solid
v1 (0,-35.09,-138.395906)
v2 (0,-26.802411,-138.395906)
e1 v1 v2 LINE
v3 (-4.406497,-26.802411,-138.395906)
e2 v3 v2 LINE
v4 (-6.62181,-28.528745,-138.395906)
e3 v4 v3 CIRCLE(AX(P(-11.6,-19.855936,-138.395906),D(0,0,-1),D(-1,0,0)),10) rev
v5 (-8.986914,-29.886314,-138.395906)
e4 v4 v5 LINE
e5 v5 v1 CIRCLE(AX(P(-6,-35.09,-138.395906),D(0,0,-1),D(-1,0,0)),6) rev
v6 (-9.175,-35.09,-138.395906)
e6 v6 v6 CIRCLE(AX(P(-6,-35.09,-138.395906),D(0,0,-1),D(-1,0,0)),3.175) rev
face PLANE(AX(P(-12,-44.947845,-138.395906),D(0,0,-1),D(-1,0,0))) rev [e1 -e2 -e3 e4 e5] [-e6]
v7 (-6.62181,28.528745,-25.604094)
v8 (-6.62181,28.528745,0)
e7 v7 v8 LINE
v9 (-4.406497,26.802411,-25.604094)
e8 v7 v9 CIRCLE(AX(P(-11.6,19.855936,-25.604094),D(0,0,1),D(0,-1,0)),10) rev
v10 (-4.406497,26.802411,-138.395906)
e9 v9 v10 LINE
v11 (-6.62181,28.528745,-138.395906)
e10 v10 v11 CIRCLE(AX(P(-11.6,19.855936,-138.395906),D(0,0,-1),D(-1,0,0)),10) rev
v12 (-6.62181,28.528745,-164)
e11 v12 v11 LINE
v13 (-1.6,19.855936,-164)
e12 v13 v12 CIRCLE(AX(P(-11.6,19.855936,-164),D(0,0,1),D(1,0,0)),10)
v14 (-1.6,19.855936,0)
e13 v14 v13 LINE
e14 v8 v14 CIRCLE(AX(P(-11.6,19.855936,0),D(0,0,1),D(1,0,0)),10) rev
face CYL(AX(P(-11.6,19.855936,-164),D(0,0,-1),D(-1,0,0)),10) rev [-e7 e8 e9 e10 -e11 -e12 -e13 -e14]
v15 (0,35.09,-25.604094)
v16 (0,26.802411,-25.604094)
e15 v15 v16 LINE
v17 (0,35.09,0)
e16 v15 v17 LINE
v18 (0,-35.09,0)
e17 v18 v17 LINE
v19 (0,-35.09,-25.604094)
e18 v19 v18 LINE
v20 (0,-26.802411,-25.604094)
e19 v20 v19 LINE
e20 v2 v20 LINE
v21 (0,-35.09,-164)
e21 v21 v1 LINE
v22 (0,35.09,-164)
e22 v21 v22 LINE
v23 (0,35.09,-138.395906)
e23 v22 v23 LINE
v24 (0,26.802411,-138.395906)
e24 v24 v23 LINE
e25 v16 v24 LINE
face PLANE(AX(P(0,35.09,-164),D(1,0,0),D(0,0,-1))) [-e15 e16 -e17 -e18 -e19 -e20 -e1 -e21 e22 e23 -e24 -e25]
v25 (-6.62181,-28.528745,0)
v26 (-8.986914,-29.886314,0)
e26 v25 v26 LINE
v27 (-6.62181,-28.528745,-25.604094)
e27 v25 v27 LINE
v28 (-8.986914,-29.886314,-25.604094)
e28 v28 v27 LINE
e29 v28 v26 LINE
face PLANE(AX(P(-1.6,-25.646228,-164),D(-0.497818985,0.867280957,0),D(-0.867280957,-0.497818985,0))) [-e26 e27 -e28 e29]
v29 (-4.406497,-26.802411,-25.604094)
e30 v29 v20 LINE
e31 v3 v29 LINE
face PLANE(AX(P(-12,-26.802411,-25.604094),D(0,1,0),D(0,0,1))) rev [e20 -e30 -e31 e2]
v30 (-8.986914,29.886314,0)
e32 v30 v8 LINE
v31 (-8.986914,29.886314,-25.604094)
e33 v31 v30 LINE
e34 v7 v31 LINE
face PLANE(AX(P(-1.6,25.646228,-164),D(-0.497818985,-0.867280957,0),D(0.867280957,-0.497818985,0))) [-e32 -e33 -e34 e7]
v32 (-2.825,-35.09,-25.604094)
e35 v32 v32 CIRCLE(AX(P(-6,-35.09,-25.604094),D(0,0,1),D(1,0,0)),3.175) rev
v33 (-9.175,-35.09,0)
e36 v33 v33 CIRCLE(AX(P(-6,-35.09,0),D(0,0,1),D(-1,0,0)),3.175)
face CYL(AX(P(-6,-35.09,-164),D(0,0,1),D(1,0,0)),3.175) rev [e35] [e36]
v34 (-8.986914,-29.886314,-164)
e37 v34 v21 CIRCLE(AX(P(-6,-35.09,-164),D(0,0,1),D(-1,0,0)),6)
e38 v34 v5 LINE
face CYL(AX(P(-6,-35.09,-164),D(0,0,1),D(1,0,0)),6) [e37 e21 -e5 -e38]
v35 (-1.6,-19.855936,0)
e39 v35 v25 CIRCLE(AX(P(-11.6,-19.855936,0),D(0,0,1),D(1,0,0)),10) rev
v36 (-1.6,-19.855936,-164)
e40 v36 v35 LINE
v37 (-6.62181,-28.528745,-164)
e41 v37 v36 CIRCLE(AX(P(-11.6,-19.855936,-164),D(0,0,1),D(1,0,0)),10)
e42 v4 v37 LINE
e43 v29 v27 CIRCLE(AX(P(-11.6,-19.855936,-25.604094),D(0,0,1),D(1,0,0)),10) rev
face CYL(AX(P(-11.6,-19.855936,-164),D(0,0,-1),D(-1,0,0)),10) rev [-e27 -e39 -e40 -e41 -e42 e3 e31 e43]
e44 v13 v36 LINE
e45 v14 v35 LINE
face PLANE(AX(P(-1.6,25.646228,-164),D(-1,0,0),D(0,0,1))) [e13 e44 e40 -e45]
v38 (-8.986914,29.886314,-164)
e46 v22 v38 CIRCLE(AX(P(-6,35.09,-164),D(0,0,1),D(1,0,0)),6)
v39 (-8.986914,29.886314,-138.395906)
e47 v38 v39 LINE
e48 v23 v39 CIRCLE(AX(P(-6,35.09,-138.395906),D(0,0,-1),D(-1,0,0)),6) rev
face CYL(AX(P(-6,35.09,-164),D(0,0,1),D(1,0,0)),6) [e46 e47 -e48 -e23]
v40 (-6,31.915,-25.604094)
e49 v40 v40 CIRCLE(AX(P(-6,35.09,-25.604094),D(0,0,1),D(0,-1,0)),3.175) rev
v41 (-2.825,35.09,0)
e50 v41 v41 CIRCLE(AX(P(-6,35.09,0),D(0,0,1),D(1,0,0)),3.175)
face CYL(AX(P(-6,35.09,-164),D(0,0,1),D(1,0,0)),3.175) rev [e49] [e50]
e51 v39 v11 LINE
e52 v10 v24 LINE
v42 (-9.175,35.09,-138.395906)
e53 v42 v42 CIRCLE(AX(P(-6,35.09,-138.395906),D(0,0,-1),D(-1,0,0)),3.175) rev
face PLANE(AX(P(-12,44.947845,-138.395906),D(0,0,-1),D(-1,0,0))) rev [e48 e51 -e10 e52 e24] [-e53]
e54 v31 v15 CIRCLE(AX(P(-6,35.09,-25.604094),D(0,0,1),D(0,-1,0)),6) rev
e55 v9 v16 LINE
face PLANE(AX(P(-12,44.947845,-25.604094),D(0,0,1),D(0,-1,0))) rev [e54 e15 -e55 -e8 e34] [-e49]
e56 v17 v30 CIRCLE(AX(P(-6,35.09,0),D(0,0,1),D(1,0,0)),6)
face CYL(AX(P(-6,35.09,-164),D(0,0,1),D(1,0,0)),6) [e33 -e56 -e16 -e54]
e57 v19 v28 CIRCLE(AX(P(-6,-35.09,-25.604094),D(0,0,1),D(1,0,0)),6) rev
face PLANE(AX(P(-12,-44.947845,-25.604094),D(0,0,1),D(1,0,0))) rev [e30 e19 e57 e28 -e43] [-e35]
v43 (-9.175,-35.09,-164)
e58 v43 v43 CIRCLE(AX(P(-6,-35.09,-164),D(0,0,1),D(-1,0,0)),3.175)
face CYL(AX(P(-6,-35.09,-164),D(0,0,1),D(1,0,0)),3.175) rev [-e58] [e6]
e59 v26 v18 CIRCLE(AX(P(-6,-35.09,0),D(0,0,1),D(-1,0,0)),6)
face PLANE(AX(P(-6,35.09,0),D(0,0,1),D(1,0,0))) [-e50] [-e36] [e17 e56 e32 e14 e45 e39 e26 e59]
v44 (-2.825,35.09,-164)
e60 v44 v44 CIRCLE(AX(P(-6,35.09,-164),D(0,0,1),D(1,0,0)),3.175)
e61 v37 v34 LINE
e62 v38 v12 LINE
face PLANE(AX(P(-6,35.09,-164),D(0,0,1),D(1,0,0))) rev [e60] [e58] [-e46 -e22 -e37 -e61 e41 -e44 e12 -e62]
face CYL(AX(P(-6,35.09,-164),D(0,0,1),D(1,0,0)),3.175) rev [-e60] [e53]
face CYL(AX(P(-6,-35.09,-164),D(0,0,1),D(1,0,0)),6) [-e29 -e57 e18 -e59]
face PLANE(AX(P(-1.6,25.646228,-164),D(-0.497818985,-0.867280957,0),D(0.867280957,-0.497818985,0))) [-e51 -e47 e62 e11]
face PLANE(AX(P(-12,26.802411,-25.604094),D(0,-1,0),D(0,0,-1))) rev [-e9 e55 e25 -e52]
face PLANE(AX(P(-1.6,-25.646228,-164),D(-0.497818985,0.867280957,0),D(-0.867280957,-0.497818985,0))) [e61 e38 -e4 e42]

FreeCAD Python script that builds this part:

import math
import FreeCAD as App
import Part
import Sketcher
from FreeCAD import Vector


def edges_at(feature, points):
    """Names of the edges that pass closest to the given points."""
    edges = feature.Shape.Edges
    near = lambda p: min(range(len(edges)), key=lambda i: edges[i].distToShape(Part.Vertex(*p))[0])
    return sorted({f"Edge{near(p) + 1}" for p in points})

doc = App.newDocument("Part")
params = doc.addObject("Spreadsheet::Sheet", "Params")
for row, (alias, value) in enumerate([
    ("sketch1_radius", "6 mm"),
    ("sketch1_diameter", "6.35 mm"),
    ("sketch1_height", "70.18 mm"),
    ("pad1_length", "164 mm"),
    ("fillet_radius", "10 mm"),
], start=1):
    params.set(f"A{row}", alias)
    params.set(f"B{row}", "=" + value)
    params.setAlias(f"B{row}", alias)

body = doc.addObject("PartDesign::Body", "Body")

# Sketch on XY plane
sketch1 = body.newObject("Sketcher::SketchObject", "Sketch")
sketch1.AttachmentSupport = (doc.getObject("XY_Plane"), [""])
sketch1.MapMode = "FlatFace"
sketch1.addGeometry([
    Part.LineSegment(Vector(-9, 29.9, 0), Vector(-1.6, 25.6, 0)),  # 0
    Part.LineSegment(Vector(-1.6, 25.6, 0), Vector(-1.6, -25.6, 0)),  # 1
    Part.LineSegment(Vector(-1.6, -25.6, 0), Vector(-9, -29.9, 0)),  # 2
    Part.ArcOfCircle(Part.Circle(Vector(-6, -35.1, 0), Vector(0, 0, 1), 6), math.radians(120), math.radians(360)),  # 3
    Part.LineSegment(Vector(0, -35.1, 0), Vector(0, 35.1, 0)),  # 4
    Part.ArcOfCircle(Part.Circle(Vector(-6, 35.1, 0), Vector(0, 0, 1), 6), math.radians(0), math.radians(240)),  # 5
    Part.Circle(Vector(-6, -35.1, 0), Vector(0, 0, 1), 3.2),  # 6
    Part.Circle(Vector(-6, 35.1, 0), Vector(0, 0, 1), 3.2),  # 7
], False)
sketch1.addConstraint([
    Sketcher.Constraint("Coincident", 0, 2, 1, 1),
    Sketcher.Constraint("Coincident", 1, 2, 2, 1),
    Sketcher.Constraint("Tangent", 2, 2, 3, 1),
    Sketcher.Constraint("Tangent", 3, 2, 4, 1),
    Sketcher.Constraint("Tangent", 4, 2, 5, 1),
    Sketcher.Constraint("Tangent", 5, 2, 0, 1),
    Sketcher.Constraint("Vertical", 1),
    Sketcher.Constraint("Vertical", 4),
    Sketcher.Constraint("Coincident", 6, 3, 3, 3),
    Sketcher.Constraint("Coincident", 7, 3, 5, 3),
    Sketcher.Constraint("Equal", 3, 5),
    Sketcher.Constraint("Equal", 6, 7),
    Sketcher.Constraint("Symmetric", 3, 2, 4, 2, -1, 1),
    Sketcher.Constraint("Vertical", 2, 2, 5, 2),
    Sketcher.Constraint("Radius", 3, 6.0),
    Sketcher.Constraint("Diameter", 6, 6.35),
    Sketcher.Constraint("DistanceY", 4, 1, 4, 2, 70.18),
    Sketcher.Constraint("DistanceX", 0, 2, -1, 1, 1.6),
    Sketcher.Constraint("DistanceY", 1, 2, 1, 1, 51.292456),
])
sketch1.setExpression("Constraints[14]", "Params.sketch1_radius")
sketch1.setExpression("Constraints[15]", "Params.sketch1_diameter")
sketch1.setExpression("Constraints[16]", "Params.sketch1_height")
pad1 = body.newObject("PartDesign::Pad", "Pad")
pad1.Profile = sketch1
pad1.setExpression("Length", "Params.pad1_length")
pad1.Reversed = True
doc.recompute()

fillet = body.newObject("PartDesign::Fillet", "Fillet")
fillet.Base = (pad1, edges_at(pad1, [(-1.6, -25.646, -82), (-1.6, 25.646, -82)]))
fillet.setExpression("Radius", "Params.fillet_radius")

# Sketch on YZ plane
sketch2 = body.newObject("Sketcher::SketchObject", "Sketch001")
sketch2.AttachmentSupport = (doc.getObject("YZ_Plane"), [""])
sketch2.MapMode = "FlatFace"
sketch2.addGeometry([
    Part.LineSegment(Vector(45, -26, 0), Vector(27, -26, 0)),  # 0
    Part.LineSegment(Vector(27, -26, 0), Vector(27, -138, 0)),  # 1
    Part.LineSegment(Vector(27, -138, 0), Vector(45, -138, 0)),  # 2
    Part.LineSegment(Vector(45, -138, 0), Vector(45, -26, 0)),  # 3
    Part.LineSegment(Vector(-27, -26, 0), Vector(-45, -26, 0)),  # 4
    Part.LineSegment(Vector(-45, -26, 0), Vector(-45, -138, 0)),  # 5
    Part.LineSegment(Vector(-45, -138, 0), Vector(-27, -138, 0)),  # 6
    Part.LineSegment(Vector(-27, -138, 0), Vector(-27, -26, 0)),  # 7
], False)
sketch2.addConstraint([
    Sketcher.Constraint("Coincident", 0, 2, 1, 1),
    Sketcher.Constraint("Coincident", 1, 2, 2, 1),
    Sketcher.Constraint("Coincident", 2, 2, 3, 1),
    Sketcher.Constraint("Coincident", 3, 2, 0, 1),
    Sketcher.Constraint("Coincident", 4, 2, 5, 1),
    Sketcher.Constraint("Coincident", 5, 2, 6, 1),
    Sketcher.Constraint("Coincident", 6, 2, 7, 1),
    Sketcher.Constraint("Coincident", 7, 2, 4, 1),
    Sketcher.Constraint("Horizontal", 0),
    Sketcher.Constraint("Vertical", 1),
    Sketcher.Constraint("Horizontal", 2),
    Sketcher.Constraint("Vertical", 3),
    Sketcher.Constraint("Horizontal", 4),
    Sketcher.Constraint("Vertical", 5),
    Sketcher.Constraint("Horizontal", 6),
    Sketcher.Constraint("Vertical", 7),
    Sketcher.Constraint("Symmetric", 3, 2, 4, 2, -2),
    Sketcher.Constraint("Symmetric", 1, 2, 6, 2, -2),
    Sketcher.Constraint("DistanceX", 0, 2, 0, 1, 18.145435),
    Sketcher.Constraint("DistanceY", 1, 2, 1, 1, 112.791812),
    Sketcher.Constraint("DistanceX", -1, 1, 0, 2, 26.802411),
    Sketcher.Constraint("DistanceY", 0, 2, -1, 1, 25.604094),
])
pocket1 = body.newObject("PartDesign::Pocket", "Pocket")
pocket1.Profile = sketch2
pocket1.Type = "ThroughAll"

doc.recompute()
